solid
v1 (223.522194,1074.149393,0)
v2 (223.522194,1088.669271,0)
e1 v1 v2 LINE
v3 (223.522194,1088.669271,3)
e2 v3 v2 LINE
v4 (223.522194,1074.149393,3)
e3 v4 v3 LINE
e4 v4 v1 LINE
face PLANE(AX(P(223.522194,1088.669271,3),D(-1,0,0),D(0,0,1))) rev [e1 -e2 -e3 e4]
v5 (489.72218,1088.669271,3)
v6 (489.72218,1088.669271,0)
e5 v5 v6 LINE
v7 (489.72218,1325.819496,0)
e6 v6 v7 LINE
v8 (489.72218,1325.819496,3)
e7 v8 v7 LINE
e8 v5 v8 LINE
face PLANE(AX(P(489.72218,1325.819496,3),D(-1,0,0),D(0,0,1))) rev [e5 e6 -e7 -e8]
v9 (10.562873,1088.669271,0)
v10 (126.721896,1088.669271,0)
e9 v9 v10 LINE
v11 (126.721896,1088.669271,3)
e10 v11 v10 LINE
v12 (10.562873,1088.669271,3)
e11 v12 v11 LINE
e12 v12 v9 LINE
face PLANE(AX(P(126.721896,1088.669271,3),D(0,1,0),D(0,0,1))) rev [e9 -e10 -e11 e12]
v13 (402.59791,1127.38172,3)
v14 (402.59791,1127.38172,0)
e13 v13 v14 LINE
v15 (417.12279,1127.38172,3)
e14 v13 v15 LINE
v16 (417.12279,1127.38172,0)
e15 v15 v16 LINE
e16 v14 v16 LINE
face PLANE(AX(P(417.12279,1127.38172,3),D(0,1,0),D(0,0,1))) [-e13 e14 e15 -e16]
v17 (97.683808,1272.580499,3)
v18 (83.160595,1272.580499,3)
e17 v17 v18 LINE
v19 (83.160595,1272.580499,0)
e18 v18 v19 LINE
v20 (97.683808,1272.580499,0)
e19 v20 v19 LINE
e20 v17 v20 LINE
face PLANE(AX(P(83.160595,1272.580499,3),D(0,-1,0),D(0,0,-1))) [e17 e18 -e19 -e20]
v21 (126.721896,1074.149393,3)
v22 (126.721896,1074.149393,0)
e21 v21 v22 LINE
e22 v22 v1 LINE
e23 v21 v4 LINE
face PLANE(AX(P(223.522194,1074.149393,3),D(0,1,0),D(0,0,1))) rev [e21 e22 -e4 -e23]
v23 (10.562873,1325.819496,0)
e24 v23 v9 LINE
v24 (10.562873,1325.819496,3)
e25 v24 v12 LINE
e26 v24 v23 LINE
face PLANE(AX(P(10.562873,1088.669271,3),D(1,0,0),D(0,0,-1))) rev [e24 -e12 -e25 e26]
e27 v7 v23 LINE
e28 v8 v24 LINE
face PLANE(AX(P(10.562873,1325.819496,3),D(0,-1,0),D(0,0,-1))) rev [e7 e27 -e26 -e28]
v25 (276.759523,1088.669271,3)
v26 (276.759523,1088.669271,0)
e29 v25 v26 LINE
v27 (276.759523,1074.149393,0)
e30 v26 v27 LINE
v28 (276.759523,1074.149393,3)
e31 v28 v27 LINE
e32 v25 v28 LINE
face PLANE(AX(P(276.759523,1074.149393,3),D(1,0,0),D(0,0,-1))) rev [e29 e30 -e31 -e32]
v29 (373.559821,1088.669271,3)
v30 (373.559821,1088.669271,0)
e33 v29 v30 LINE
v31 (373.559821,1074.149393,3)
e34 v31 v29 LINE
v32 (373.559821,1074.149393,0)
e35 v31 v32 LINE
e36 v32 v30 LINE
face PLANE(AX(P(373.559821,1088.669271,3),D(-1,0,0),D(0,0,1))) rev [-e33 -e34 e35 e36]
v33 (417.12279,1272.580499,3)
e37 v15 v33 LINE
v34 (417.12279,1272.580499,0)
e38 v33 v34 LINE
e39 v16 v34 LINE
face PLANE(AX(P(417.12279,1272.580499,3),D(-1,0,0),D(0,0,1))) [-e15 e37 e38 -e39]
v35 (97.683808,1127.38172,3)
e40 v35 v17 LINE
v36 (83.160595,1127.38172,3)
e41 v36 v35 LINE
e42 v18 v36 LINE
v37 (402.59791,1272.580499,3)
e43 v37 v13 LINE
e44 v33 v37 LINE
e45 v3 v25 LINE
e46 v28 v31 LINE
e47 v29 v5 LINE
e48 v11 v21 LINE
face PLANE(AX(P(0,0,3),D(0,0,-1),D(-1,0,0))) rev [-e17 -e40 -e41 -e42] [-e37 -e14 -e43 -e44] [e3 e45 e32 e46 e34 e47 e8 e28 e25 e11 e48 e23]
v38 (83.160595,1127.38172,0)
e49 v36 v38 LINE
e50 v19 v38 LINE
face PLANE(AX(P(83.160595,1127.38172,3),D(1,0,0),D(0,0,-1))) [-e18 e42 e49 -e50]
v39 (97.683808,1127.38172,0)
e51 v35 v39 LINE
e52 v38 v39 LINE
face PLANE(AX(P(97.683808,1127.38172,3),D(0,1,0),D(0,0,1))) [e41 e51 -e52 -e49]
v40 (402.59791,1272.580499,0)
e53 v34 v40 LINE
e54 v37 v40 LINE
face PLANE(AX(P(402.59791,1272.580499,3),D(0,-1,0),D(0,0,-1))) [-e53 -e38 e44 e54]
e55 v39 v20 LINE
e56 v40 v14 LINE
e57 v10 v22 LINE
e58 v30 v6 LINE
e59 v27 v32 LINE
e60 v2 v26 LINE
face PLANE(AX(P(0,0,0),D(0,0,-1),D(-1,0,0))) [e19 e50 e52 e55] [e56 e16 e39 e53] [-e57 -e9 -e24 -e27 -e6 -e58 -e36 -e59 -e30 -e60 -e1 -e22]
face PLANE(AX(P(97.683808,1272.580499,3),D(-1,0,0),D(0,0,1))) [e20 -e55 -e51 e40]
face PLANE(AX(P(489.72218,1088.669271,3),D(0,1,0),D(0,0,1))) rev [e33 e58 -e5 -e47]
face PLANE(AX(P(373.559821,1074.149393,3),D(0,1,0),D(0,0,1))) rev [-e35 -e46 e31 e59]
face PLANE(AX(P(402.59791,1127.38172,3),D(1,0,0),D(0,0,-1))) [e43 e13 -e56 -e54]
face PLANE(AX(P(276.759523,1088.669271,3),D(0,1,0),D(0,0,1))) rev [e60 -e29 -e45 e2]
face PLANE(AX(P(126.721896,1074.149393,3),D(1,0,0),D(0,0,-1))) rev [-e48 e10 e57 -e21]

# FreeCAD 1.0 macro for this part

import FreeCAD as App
import Part
import Sketcher
Q = App.Units.Quantity

doc = App.newDocument("Part")
params = doc.addObject("Spreadsheet::Sheet", "Params")
for row, (alias, value) in enumerate([
    ("pad1_length", "3 mm"),
], start=1):
    params.set(f"A{row}", alias)
    params.set(f"B{row}", "=" + value)
    params.setAlias(f"B{row}", alias)

body = doc.addObject("PartDesign::Body", "Body")

# Sketch on XY plane
sketch1 = body.newObject("Sketcher::SketchObject", "Sketch")
sketch1.AttachmentSupport = (doc.getObject("XY_Plane"), [""])
sketch1.MapMode = "FlatFace"
sketch1.addGeometry(Part.LineSegment(App.Vector(374, 1089, 0), App.Vector(490, 1089, 0)), False)
sketch1.addGeometry(Part.LineSegment(App.Vector(490, 1089, 0), App.Vector(490, 1326, 0)), False)
sketch1.addGeometry(Part.LineSegment(App.Vector(490, 1326, 0), App.Vector(11, 1326, 0)), False)
sketch1.addGeometry(Part.LineSegment(App.Vector(11, 1326, 0), App.Vector(11, 1089, 0)), False)
sketch1.addGeometry(Part.LineSegment(App.Vector(11, 1089, 0), App.Vector(127, 1089, 0)), False)
sketch1.addGeometry(Part.LineSegment(App.Vector(127, 1089, 0), App.Vector(127, 1074, 0)), False)
sketch1.addGeometry(Part.LineSegment(App.Vector(127, 1074, 0), App.Vector(224, 1074, 0)), False)
sketch1.addGeometry(Part.LineSegment(App.Vector(224, 1074, 0), App.Vector(224, 1089, 0)), False)
sketch1.addGeometry(Part.LineSegment(App.Vector(224, 1089, 0), App.Vector(277, 1089, 0)), False)
sketch1.addGeometry(Part.LineSegment(App.Vector(277, 1089, 0), App.Vector(277, 1074, 0)), False)
sketch1.addGeometry(Part.LineSegment(App.Vector(277, 1074, 0), App.Vector(374, 1074, 0)), False)
sketch1.addGeometry(Part.LineSegment(App.Vector(374, 1074, 0), App.Vector(374, 1089, 0)), False)
sketch1.addGeometry(Part.LineSegment(App.Vector(403, 1127, 0), App.Vector(403, 1273, 0)), False)
sketch1.addGeometry(Part.LineSegment(App.Vector(403, 1273, 0), App.Vector(417, 1273, 0)), False)
sketch1.addGeometry(Part.LineSegment(App.Vector(417, 1273, 0), App.Vector(417, 1127, 0)), False)
sketch1.addGeometry(Part.LineSegment(App.Vector(417, 1127, 0), App.Vector(403, 1127, 0)), False)
sketch1.addGeometry(Part.LineSegment(App.Vector(83, 1127, 0), App.Vector(83, 1273, 0)), False)
sketch1.addGeometry(Part.LineSegment(App.Vector(83, 1273, 0), App.Vector(98, 1273, 0)), False)
sketch1.addGeometry(Part.LineSegment(App.Vector(98, 1273, 0), App.Vector(98, 1127, 0)), False)
sketch1.addGeometry(Part.LineSegment(App.Vector(98, 1127, 0), App.Vector(83, 1127, 0)), False)
sketch1.addConstraint(Sketcher.Constraint("Coincident", 0, 2, 1, 1))
sketch1.addConstraint(Sketcher.Constraint("Coincident", 1, 2, 2, 1))
sketch1.addConstraint(Sketcher.Constraint("Coincident", 2, 2, 3, 1))
sketch1.addConstraint(Sketcher.Constraint("Coincident", 3, 2, 4, 1))
sketch1.addConstraint(Sketcher.Constraint("Coincident", 4, 2, 5, 1))
sketch1.addConstraint(Sketcher.Constraint("Coincident", 5, 2, 6, 1))
sketch1.addConstraint(Sketcher.Constraint("Coincident", 6, 2, 7, 1))
sketch1.addConstraint(Sketcher.Constraint("Coincident", 7, 2, 8, 1))
sketch1.addConstraint(Sketcher.Constraint("Coincident", 8, 2, 9, 1))
sketch1.addConstraint(Sketcher.Constraint("Coincident", 9, 2, 10, 1))
sketch1.addConstraint(Sketcher.Constraint("Coincident", 10, 2, 11, 1))
sketch1.addConstraint(Sketcher.Constraint("Coincident", 11, 2, 0, 1))
sketch1.addConstraint(Sketcher.Constraint("Coincident", 12, 2, 13, 1))
sketch1.addConstraint(Sketcher.Constraint("Coincident", 13, 2, 14, 1))
sketch1.addConstraint(Sketcher.Constraint("Coincident", 14, 2, 15, 1))
sketch1.addConstraint(Sketcher.Constraint("Coincident", 15, 2, 12, 1))
sketch1.addConstraint(Sketcher.Constraint("Coincident", 16, 2, 17, 1))
sketch1.addConstraint(Sketcher.Constraint("Coincident", 17, 2, 18, 1))
sketch1.addConstraint(Sketcher.Constraint("Coincident", 18, 2, 19, 1))
sketch1.addConstraint(Sketcher.Constraint("Coincident", 19, 2, 16, 1))
sketch1.addConstraint(Sketcher.Constraint("Horizontal", 0))
sketch1.addConstraint(Sketcher.Constraint("Vertical", 1))
sketch1.addConstraint(Sketcher.Constraint("Horizontal", 2))
sketch1.addConstraint(Sketcher.Constraint("Vertical", 3))
sketch1.addConstraint(Sketcher.Constraint("Horizontal", 4))
sketch1.addConstraint(Sketcher.Constraint("Vertical", 5))
sketch1.addConstraint(Sketcher.Constraint("Horizontal", 6))
sketch1.addConstraint(Sketcher.Constraint("Vertical", 7))
sketch1.addConstraint(Sketcher.Constraint("Horizontal", 8))
sketch1.addConstraint(Sketcher.Constraint("Vertical", 9))
sketch1.addConstraint(Sketcher.Constraint("Horizontal", 10))
sketch1.addConstraint(Sketcher.Constraint("Vertical", 11))
sketch1.addConstraint(Sketcher.Constraint("Vertical", 12))
sketch1.addConstraint(Sketcher.Constraint("Horizontal", 13))
sketch1.addConstraint(Sketcher.Constraint("Vertical", 14))
sketch1.addConstraint(Sketcher.Constraint("Horizontal", 15))
sketch1.addConstraint(Sketcher.Constraint("Vertical", 16))
sketch1.addConstraint(Sketcher.Constraint("Horizontal", 17))
sketch1.addConstraint(Sketcher.Constraint("Vertical", 18))
sketch1.addConstraint(Sketcher.Constraint("Horizontal", 19))
sketch1.addConstraint(Sketcher.Constraint("Horizontal", 0, 2, 3, 2))
sketch1.addConstraint(Sketcher.Constraint("Horizontal", 4, 2, 7, 2))
sketch1.addConstraint(Sketcher.Constraint("Horizontal", 6, 2, 9, 2))
sketch1.addConstraint(Sketcher.Constraint("Horizontal", 13, 2, 16, 2))
sketch1.addConstraint(Sketcher.Constraint("Horizontal", 15, 2, 18, 2))
sketch1.addConstraint(Sketcher.Constraint("Equal", 6, 10))
sketch1.addConstraint(Sketcher.Constraint("DistanceX", 0, 1, 0, 2, Q("116.162358 mm")))
sketch1.addConstraint(Sketcher.Constraint("DistanceX", 8, 1, 8, 2, Q("53.237329 mm")))
sketch1.addConstraint(Sketcher.Constraint("DistanceX", 13, 1, 13, 2, Q("14.52488 mm")))
sketch1.addConstraint(Sketcher.Constraint("DistanceY", 12, 1, 12, 2, Q("145.198779 mm")))
sketch1.addConstraint(Sketcher.Constraint("DistanceY", -1, 1, 12, 2, Q("1272.580499 mm")))
sketch1.addConstraint(Sketcher.Constraint("DistanceX", 16, 2, 4, 2, Q("43.561301 mm")))
sketch1.addConstraint(Sketcher.Constraint("DistanceX", 16, 2, 7, 2, Q("140.361599 mm")))
sketch1.addConstraint(Sketcher.Constraint("DistanceX", 2, 2, 2, 1, Q("479.159307 mm")))
sketch1.addConstraint(Sketcher.Constraint("DistanceX", 17, 1, 17, 2, Q("14.523213 mm")))
sketch1.addConstraint(Sketcher.Constraint("DistanceY", 1, 1, 1, 2, Q("237.150225 mm")))
sketch1.addConstraint(Sketcher.Constraint("DistanceY", 5, 2, 5, 1, Q("14.519878 mm")))
sketch1.addConstraint(Sketcher.Constraint("DistanceX", -1, 1, 0, 2, Q("489.72218 mm")))
sketch1.addConstraint(Sketcher.Constraint("DistanceY", -1, 1, 0, 2, Q("1088.669271 mm")))
sketch1.addConstraint(Sketcher.Constraint("DistanceX", -1, 1, 12, 2, Q("402.59791 mm")))
pad1 = body.newObject("PartDesign::Pad", "Pad")
pad1.Profile = sketch1
pad1.setExpression("Length", "Params.pad1_length")

doc.recompute()
